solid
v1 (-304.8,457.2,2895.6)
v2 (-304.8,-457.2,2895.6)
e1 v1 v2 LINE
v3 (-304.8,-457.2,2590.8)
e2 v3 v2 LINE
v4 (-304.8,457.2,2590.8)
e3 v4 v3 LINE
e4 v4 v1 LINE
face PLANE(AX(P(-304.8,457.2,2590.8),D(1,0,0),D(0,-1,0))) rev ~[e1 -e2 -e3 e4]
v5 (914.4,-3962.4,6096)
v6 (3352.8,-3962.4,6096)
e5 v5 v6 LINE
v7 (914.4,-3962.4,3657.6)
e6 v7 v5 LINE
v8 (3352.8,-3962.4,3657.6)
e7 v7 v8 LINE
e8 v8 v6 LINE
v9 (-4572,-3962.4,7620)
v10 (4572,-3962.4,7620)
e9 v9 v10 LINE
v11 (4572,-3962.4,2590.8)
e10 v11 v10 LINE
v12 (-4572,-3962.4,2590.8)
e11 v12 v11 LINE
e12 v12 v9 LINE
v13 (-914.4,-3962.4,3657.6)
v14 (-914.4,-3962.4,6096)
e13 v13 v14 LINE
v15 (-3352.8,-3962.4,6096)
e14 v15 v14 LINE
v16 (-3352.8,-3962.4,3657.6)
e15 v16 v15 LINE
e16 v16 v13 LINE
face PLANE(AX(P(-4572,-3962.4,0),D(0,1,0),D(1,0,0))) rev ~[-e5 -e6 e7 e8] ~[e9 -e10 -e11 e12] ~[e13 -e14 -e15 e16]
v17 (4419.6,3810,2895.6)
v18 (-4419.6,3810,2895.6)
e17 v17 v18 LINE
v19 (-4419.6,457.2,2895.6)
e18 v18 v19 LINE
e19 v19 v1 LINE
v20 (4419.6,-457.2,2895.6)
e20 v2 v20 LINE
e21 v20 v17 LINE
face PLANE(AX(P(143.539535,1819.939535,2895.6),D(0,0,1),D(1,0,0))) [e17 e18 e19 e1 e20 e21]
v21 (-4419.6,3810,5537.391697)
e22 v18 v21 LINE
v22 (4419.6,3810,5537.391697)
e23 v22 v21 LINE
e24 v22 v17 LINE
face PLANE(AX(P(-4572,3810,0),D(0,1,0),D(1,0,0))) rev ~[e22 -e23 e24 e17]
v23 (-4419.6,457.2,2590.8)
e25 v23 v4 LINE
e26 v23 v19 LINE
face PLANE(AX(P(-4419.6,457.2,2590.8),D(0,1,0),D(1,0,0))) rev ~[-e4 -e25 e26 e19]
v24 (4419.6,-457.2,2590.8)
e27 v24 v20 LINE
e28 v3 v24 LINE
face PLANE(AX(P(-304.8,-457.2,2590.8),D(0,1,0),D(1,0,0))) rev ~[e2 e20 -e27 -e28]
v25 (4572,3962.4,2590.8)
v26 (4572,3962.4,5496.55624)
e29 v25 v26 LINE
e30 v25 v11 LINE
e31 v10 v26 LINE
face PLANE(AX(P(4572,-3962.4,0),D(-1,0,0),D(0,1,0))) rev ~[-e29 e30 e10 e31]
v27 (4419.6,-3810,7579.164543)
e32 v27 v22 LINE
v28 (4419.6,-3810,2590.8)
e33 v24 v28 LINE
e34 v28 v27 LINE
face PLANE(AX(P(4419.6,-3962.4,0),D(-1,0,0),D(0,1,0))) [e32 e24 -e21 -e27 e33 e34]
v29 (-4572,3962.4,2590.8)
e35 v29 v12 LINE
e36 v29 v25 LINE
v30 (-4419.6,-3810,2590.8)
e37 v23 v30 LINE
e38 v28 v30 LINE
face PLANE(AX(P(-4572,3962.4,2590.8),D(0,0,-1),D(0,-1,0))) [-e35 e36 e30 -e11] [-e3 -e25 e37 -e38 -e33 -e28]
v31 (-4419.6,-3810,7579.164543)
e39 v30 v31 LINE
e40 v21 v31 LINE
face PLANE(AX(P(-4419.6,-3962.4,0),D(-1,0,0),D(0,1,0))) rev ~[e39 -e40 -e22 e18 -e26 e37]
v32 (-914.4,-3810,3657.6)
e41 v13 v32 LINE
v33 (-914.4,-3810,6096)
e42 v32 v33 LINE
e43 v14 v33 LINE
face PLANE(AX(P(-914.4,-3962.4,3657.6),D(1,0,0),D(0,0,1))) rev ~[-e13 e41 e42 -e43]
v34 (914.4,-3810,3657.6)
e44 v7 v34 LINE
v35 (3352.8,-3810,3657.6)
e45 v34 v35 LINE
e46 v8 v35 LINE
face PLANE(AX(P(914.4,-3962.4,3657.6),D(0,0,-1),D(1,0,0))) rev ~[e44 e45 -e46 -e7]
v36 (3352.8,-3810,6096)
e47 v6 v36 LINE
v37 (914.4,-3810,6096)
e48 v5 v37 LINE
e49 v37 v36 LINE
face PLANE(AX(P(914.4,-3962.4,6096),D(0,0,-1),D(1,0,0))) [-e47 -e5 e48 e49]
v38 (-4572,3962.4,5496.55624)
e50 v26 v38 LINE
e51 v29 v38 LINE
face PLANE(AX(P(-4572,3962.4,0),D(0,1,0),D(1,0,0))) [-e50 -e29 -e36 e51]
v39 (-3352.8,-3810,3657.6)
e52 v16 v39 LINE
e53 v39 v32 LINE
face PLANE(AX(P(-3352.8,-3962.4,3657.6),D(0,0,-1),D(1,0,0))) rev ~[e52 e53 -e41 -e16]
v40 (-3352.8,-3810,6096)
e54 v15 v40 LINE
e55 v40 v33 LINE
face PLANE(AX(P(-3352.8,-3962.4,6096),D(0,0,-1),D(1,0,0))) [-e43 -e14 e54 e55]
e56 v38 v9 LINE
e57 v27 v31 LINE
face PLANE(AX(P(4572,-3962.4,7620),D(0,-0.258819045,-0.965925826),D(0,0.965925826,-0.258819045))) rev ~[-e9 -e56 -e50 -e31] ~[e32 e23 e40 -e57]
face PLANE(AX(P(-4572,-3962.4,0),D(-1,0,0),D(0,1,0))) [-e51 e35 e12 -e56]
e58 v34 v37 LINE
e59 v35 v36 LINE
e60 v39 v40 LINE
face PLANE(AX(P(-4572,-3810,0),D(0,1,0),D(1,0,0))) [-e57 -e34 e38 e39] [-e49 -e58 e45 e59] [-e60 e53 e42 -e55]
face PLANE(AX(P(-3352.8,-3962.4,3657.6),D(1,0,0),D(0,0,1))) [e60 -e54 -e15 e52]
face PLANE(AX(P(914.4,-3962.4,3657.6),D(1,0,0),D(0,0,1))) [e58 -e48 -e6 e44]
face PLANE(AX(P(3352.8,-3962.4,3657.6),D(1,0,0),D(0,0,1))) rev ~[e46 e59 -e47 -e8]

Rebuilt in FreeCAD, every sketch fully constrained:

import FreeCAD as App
import Part
import Sketcher
from FreeCAD import Vector
Q = App.Units.Quantity


def faces_at(feature, points):
    """Names of the faces that lie closest to the given points."""
    faces = feature.Shape.Faces
    near = lambda p: min(range(len(faces)), key=lambda i: faces[i].distToShape(Part.Vertex(*p))[0])
    return sorted({f"Face{near(p) + 1}" for p in points})

doc = App.newDocument("Part")
body = doc.addObject("PartDesign::Body", "Body")

# Sketch on XY plane
sketch1 = body.newObject("Sketcher::SketchObject", "Sketch")
sketch1.AttachmentSupport = (doc.getObject("XY_Plane"), [""])
sketch1.MapMode = "FlatFace"
sketch1.addGeometry([
    Part.LineSegment(Vector(-4572, 3962, 0), Vector(-4572, -3962, 0)),
    Part.LineSegment(Vector(-4572, -3962, 0), Vector(4572, -3962, 0)),
    Part.LineSegment(Vector(4572, -3962, 0), Vector(4572, 3962, 0)),
    Part.LineSegment(Vector(4572, 3962, 0), Vector(-4572, 3962, 0)),
], False)
sketch1.addConstraint([
    Sketcher.Constraint("Coincident", 0, 2, 1, 1),
    Sketcher.Constraint("Coincident", 1, 2, 2, 1),
    Sketcher.Constraint("Coincident", 2, 2, 3, 1),
    Sketcher.Constraint("Coincident", 3, 2, 0, 1),
    Sketcher.Constraint("Vertical", 0),
    Sketcher.Constraint("Horizontal", 1),
    Sketcher.Constraint("Vertical", 2),
    Sketcher.Constraint("Horizontal", 3),
    Sketcher.Constraint("Symmetric", 0, 2, 2, 2, -1, 1),
    Sketcher.Constraint("DistanceX", 1, 1, 1, 2, Q("360 in")),
    Sketcher.Constraint("DistanceY", 0, 2, 0, 1, Q("312 in")),
])
pad1 = body.newObject("PartDesign::Pad", "Pad")
pad1.Profile = sketch1
pad1.Length = Q("300 in")

# Sketch on YZ plane
sketch2 = body.newObject("Sketcher::SketchObject", "Sketch001")
sketch2.AttachmentSupport = (doc.getObject("YZ_Plane"), [""])
sketch2.MapMode = "FlatFace"
sketch2.AttachmentOffset = App.Placement(Vector(0, 0, 180 * 25.4), App.Rotation())
sketch2.addGeometry([
    Part.LineSegment(Vector(3962, 7620, 0), Vector(-3962, 7620, 0)),
    Part.LineSegment(Vector(-3962, 7620, 0), Vector(3962, 5497, 0)),
    Part.LineSegment(Vector(3962, 5497, 0), Vector(3962, 7620, 0)),
], False)
sketch2.addConstraint([
    Sketcher.Constraint("Coincident", 0, 2, 1, 1),
    Sketcher.Constraint("Coincident", 1, 2, 2, 1),
    Sketcher.Constraint("Coincident", 2, 2, 0, 1),
    Sketcher.Constraint("Horizontal", 0),
    Sketcher.Constraint("Vertical", 2),
    Sketcher.Constraint("DistanceX", 0, 2, 0, 1, Q("312 in")),
    Sketcher.Constraint("DistanceX", 0, 2, -1, 1, Q("156 in")),
    Sketcher.Constraint("DistanceY", -1, 1, 0, 2, Q("300 in")),
    Sketcher.Constraint("Angle", 1, Q("-15 deg")),
])
pocket1 = body.newObject("PartDesign::Pocket", "Pocket")
pocket1.Profile = sketch2
pocket1.Type = "ThroughAll"
doc.recompute()

thickness = body.newObject("PartDesign::Thickness", "Thickness")
thickness.Base = (pocket1, faces_at(pocket1, [(0, 0, 6558.278)]))
thickness.Value = Q("6 in")
thickness.Reversed = True
thickness.Join = "Arc"

# Sketch on XZ plane
sketch3 = body.newObject("Sketcher::SketchObject", "Sketch002")
sketch3.AttachmentSupport = (doc.getObject("XZ_Plane"), [""])
sketch3.MapMode = "FlatFace"
sketch3.AttachmentOffset = App.Placement(Vector(0, 0, 156 * 25.4), App.Rotation())
sketch3.addGeometry([
    Part.LineSegment(Vector(-457, 2286, 0), Vector(-457, 152, 0)),  # 0
    Part.LineSegment(Vector(-457, 152, 0), Vector(457, 152, 0)),  # 1
    Part.LineSegment(Vector(457, 152, 0), Vector(457, 2286, 0)),  # 2
    Part.LineSegment(Vector(457, 2286, 0), Vector(-457, 2286, 0)),  # 3
    Part.LineSegment(Vector(-3353, 6096, 0), Vector(-3353, 3658, 0)),  # 4
    Part.LineSegment(Vector(-3353, 3658, 0), Vector(-914, 3658, 0)),  # 5
    Part.LineSegment(Vector(-914, 3658, 0), Vector(-914, 6096, 0)),  # 6
    Part.LineSegment(Vector(-914, 6096, 0), Vector(-3353, 6096, 0)),  # 7
    Part.LineSegment(Vector(914, 6096, 0), Vector(914, 3658, 0)),  # 8
    Part.LineSegment(Vector(914, 3658, 0), Vector(3353, 3658, 0)),  # 9
    Part.LineSegment(Vector(3353, 3658, 0), Vector(3353, 6096, 0)),  # 10
    Part.LineSegment(Vector(3353, 6096, 0), Vector(914, 6096, 0)),  # 11
    Part.LineSegment(Vector(-3353, 2438, 0), Vector(-3353, 914, 0)),  # 12
    Part.LineSegment(Vector(-3353, 914, 0), Vector(-1524, 914, 0)),  # 13
    Part.LineSegment(Vector(-1524, 914, 0), Vector(-1524, 2438, 0)),  # 14
    Part.LineSegment(Vector(-1524, 2438, 0), Vector(-3353, 2438, 0)),  # 15
    Part.LineSegment(Vector(1524, 2438, 0), Vector(1524, 914, 0)),  # 16
    Part.LineSegment(Vector(1524, 914, 0), Vector(3353, 914, 0)),  # 17
    Part.LineSegment(Vector(3353, 914, 0), Vector(3353, 2438, 0)),  # 18
    Part.LineSegment(Vector(3353, 2438, 0), Vector(1524, 2438, 0)),  # 19
], False)
sketch3.addConstraint([
    Sketcher.Constraint("Coincident", 0, 2, 1, 1),
    Sketcher.Constraint("Coincident", 1, 2, 2, 1),
    Sketcher.Constraint("Coincident", 2, 2, 3, 1),
    Sketcher.Constraint("Coincident", 3, 2, 0, 1),
    Sketcher.Constraint("Coincident", 4, 2, 5, 1),
    Sketcher.Constraint("Coincident", 5, 2, 6, 1),
    Sketcher.Constraint("Coincident", 6, 2, 7, 1),
    Sketcher.Constraint("Coincident", 7, 2, 4, 1),
    Sketcher.Constraint("Coincident", 8, 2, 9, 1),
    Sketcher.Constraint("Coincident", 9, 2, 10, 1),
    Sketcher.Constraint("Coincident", 10, 2, 11, 1),
    Sketcher.Constraint("Coincident", 11, 2, 8, 1),
    Sketcher.Constraint("Coincident", 12, 2, 13, 1),
    Sketcher.Constraint("Coincident", 13, 2, 14, 1),
    Sketcher.Constraint("Coincident", 14, 2, 15, 1),
    Sketcher.Constraint("Coincident", 15, 2, 12, 1),
    Sketcher.Constraint("Coincident", 16, 2, 17, 1),
    Sketcher.Constraint("Coincident", 17, 2, 18, 1),
    Sketcher.Constraint("Coincident", 18, 2, 19, 1),
    Sketcher.Constraint("Coincident", 19, 2, 16, 1),
    Sketcher.Constraint("Vertical", 0),
    Sketcher.Constraint("Horizontal", 1),
    Sketcher.Constraint("Vertical", 2),
    Sketcher.Constraint("Horizontal", 3),
    Sketcher.Constraint("Vertical", 4),
    Sketcher.Constraint("Horizontal", 5),
    Sketcher.Constraint("Vertical", 6),
    Sketcher.Constraint("Horizontal", 7),
    Sketcher.Constraint("Vertical", 8),
    Sketcher.Constraint("Horizontal", 9),
    Sketcher.Constraint("Vertical", 10),
    Sketcher.Constraint("Horizontal", 11),
    Sketcher.Constraint("Vertical", 12),
    Sketcher.Constraint("Horizontal", 13),
    Sketcher.Constraint("Vertical", 14),
    Sketcher.Constraint("Horizontal", 15),
    Sketcher.Constraint("Vertical", 16),
    Sketcher.Constraint("Horizontal", 17),
    Sketcher.Constraint("Vertical", 18),
    Sketcher.Constraint("Horizontal", 19),
    Sketcher.Constraint("Symmetric", 5, 2, 8, 2, -2),
    Sketcher.Constraint("Symmetric", 7, 2, 10, 2, -2),
    Sketcher.Constraint("Symmetric", 13, 2, 16, 2, -2),
    Sketcher.Constraint("Symmetric", 15, 2, 18, 2, -2),
    Sketcher.Constraint("Vertical", 7, 2, 12, 2),
    Sketcher.Constraint("Equal", 11, 4),
    Sketcher.Constraint("DistanceX", 1, 1, 1, 2, Q("36 in")),
    Sketcher.Constraint("DistanceX", 5, 1, 5, 2, Q("96 in")),
    Sketcher.Constraint("DistanceX", 13, 1, 13, 2, Q("72 in")),
    Sketcher.Constraint("DistanceY", 0, 2, 0, 1, Q("84 in")),
    Sketcher.Constraint("DistanceY", 12, 2, 12, 1, Q("60 in")),
    Sketcher.Constraint("DistanceX", 0, 2, -1, 1, Q("18 in")),
    Sketcher.Constraint("DistanceY", -1, 1, 0, 2, Q("6 in")),
    Sketcher.Constraint("DistanceX", 4, 2, -1, 1, Q("132 in")),
    Sketcher.Constraint("DistanceY", -1, 1, 4, 2, Q("144 in")),
    Sketcher.Constraint("DistanceY", -1, 1, 12, 2, Q("36 in")),
])
pocket2 = body.newObject("PartDesign::Pocket", "Pocket001")
pocket2.Profile = sketch3
pocket2.Length = Q("6 in")

# Sketch on XY plane
sketch4 = body.newObject("Sketcher::SketchObject", "Sketch003")
sketch4.AttachmentSupport = (doc.getObject("XY_Plane"), [""])
sketch4.MapMode = "FlatFace"
sketch4.AttachmentOffset = App.Placement(Vector(0, 0, 102 * 25.4), App.Rotation())
sketch4.addGeometry([
    Part.LineSegment(Vector(4420, 3810, 0), Vector(-4420, 3810, 0)),  # 0
    Part.LineSegment(Vector(-4420, 3810, 0), Vector(-4420, 457, 0)),  # 1
    Part.LineSegment(Vector(-4420, 457, 0), Vector(-305, 457, 0)),  # 2
    Part.LineSegment(Vector(-305, 457, 0), Vector(-305, -457, 0)),  # 3
    Part.LineSegment(Vector(-305, -457, 0), Vector(4420, -457, 0)),  # 4
    Part.LineSegment(Vector(4420, -457, 0), Vector(4420, 3810, 0)),  # 5
], False)
sketch4.addConstraint([
    Sketcher.Constraint("Coincident", 0, 2, 1, 1),
    Sketcher.Constraint("Coincident", 1, 2, 2, 1),
    Sketcher.Constraint("Coincident", 2, 2, 3, 1),
    Sketcher.Constraint("Coincident", 3, 2, 4, 1),
    Sketcher.Constraint("Coincident", 4, 2, 5, 1),
    Sketcher.Constraint("Coincident", 5, 2, 0, 1),
    Sketcher.Constraint("Horizontal", 0),
    Sketcher.Constraint("Vertical", 1),
    Sketcher.Constraint("Horizontal", 2),
    Sketcher.Constraint("Vertical", 3),
    Sketcher.Constraint("Horizontal", 4),
    Sketcher.Constraint("Vertical", 5),
    Sketcher.Constraint("Symmetric", 1, 2, 4, 2, -1, 1),
    Sketcher.Constraint("DistanceX", 0, 2, 0, 1, Q("348 in")),
    Sketcher.Constraint("DistanceX", 2, 1, 2, 2, Q("162 in")),
    Sketcher.Constraint("DistanceY", 1, 2, 1, 1, Q("132 in")),
    Sketcher.Constraint("DistanceY", 3, 2, 3, 1, Q("36 in")),
])
pad2 = body.newObject("PartDesign::Pad", "Pad001")
pad2.Profile = sketch4
pad2.Length = Q("12 in")

# Sketch on YZ plane
sketch5 = body.newObject("Sketcher::SketchObject", "Sketch004")
sketch5.AttachmentSupport = (doc.getObject("YZ_Plane"), [""])
sketch5.MapMode = "FlatFace"
sketch5.AttachmentOffset = App.Placement(Vector(0, 0, -180 * 25.4), App.Rotation())
sketch5.addGeometry([
    Part.LineSegment(Vector(3962, 2591, 0), Vector(3962, 0, 0)),
    Part.LineSegment(Vector(3962, 0, 0), Vector(-3962, 0, 0)),
    Part.LineSegment(Vector(-3962, 0, 0), Vector(-3962, 2591, 0)),
    Part.LineSegment(Vector(-3962, 2591, 0), Vector(3962, 2591, 0)),
], False)
sketch5.addConstraint([
    Sketcher.Constraint("Coincident", 0, 2, 1, 1),
    Sketcher.Constraint("Coincident", 1, 2, 2, 1),
    Sketcher.Constraint("Coincident", 2, 2, 3, 1),
    Sketcher.Constraint("Coincident", 3, 2, 0, 1),
    Sketcher.Constraint("Vertical", 0),
    Sketcher.Constraint("Horizontal", 1),
    Sketcher.Constraint("Vertical", 2),
    Sketcher.Constraint("Horizontal", 3),
    Sketcher.Constraint("Symmetric", 0, 2, 1, 2, -1, 1),
    Sketcher.Constraint("DistanceX", 1, 2, 1, 1, Q("312 in")),
    Sketcher.Constraint("DistanceY", 0, 2, 0, 1, Q("102 in")),
])
pocket3 = body.newObject("PartDesign::Pocket", "Pocket002")
pocket3.Profile = sketch5
pocket3.Type = "ThroughAll"
pocket3.Reversed = True

doc.recompute()
